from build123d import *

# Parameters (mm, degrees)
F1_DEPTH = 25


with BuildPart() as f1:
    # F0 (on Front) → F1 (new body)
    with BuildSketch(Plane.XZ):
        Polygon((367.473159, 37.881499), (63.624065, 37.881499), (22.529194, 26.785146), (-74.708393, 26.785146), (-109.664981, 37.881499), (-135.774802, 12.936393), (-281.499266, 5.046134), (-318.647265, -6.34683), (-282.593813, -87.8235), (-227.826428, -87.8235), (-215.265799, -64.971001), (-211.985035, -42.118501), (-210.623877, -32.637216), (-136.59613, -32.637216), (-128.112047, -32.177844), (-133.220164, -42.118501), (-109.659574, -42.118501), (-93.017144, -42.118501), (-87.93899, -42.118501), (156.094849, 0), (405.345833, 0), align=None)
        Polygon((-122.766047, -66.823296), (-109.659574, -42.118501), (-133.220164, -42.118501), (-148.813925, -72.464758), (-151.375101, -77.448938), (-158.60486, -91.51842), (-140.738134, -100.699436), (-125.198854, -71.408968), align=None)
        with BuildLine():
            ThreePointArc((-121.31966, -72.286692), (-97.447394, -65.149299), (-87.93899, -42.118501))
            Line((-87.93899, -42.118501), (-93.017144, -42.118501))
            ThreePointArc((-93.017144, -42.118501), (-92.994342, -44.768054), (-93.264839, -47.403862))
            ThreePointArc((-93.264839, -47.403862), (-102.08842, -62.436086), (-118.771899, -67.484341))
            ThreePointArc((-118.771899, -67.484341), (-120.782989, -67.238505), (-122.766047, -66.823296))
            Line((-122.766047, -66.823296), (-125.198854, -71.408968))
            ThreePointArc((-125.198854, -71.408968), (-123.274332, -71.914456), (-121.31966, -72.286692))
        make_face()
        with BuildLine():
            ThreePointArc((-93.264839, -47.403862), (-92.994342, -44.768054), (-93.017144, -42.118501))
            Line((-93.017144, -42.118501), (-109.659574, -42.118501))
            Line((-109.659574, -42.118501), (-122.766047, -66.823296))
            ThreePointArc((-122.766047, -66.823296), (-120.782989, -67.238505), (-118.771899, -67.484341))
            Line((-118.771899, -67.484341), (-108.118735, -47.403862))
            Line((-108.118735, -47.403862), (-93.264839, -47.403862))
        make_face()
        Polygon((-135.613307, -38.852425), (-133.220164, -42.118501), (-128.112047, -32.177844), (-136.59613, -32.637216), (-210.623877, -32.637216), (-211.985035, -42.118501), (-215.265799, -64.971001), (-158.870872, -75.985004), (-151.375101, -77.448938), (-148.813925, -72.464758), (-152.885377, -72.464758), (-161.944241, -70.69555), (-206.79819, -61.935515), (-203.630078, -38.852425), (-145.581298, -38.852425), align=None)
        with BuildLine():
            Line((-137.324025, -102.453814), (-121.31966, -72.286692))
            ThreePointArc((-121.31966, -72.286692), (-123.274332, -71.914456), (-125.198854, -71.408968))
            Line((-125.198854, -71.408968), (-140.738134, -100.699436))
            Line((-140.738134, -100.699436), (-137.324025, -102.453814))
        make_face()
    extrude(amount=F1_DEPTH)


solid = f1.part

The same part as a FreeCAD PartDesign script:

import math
import FreeCAD as App
import Part
import Sketcher
from FreeCAD import Vector

doc = App.newDocument("Part")
body = doc.addObject("PartDesign::Body", "Body")

# Sketch on XZ plane
sketch1 = body.newObject("Sketcher::SketchObject", "Sketch")
sketch1.AttachmentSupport = (doc.getObject("XZ_Plane"), [""])
sketch1.MapMode = "FlatFace"
sketch1.addGeometry([
    Part.LineSegment(Vector(367.5, 37.9, 0), Vector(63.6, 37.9, 0)),  # 0
    Part.LineSegment(Vector(63.6, 37.9, 0), Vector(22.5, 26.8, 0)),  # 1
    Part.LineSegment(Vector(22.5, 26.8, 0), Vector(-74.7, 26.8, 0)),  # 2
    Part.LineSegment(Vector(-74.7, 26.8, 0), Vector(-109.7, 37.9, 0)),  # 3
    Part.LineSegment(Vector(-109.7, 37.9, 0), Vector(-135.8, 12.9, 0)),  # 4
    Part.LineSegment(Vector(-135.8, 12.9, 0), Vector(-281.5, 5, 0)),  # 5
    Part.LineSegment(Vector(-281.5, 5, 0), Vector(-318.6, -6.3, 0)),  # 6
    Part.LineSegment(Vector(-318.6, -6.3, 0), Vector(-282.6, -87.8, 0)),  # 7
    Part.LineSegment(Vector(-282.6, -87.8, 0), Vector(-227.8, -87.8, 0)),  # 8
    Part.LineSegment(Vector(-227.8, -87.8, 0), Vector(-215.3, -65, 0)),  # 9
    Part.LineSegment(Vector(-215.3, -65, 0), Vector(-158.9, -76, 0)),  # 10
    Part.LineSegment(Vector(-158.9, -76, 0), Vector(-151.4, -77.4, 0)),  # 11
    Part.LineSegment(Vector(-151.4, -77.4, 0), Vector(-158.6, -91.5, 0)),  # 12
    Part.LineSegment(Vector(-158.6, -91.5, 0), Vector(-140.7, -100.7, 0)),  # 13
    Part.LineSegment(Vector(-140.7, -100.7, 0), Vector(-137.3, -102.5, 0)),  # 14
    Part.LineSegment(Vector(-137.3, -102.5, 0), Vector(-121.3, -72.3, 0)),  # 15
    Part.ArcOfCircle(Part.Circle(Vector(-116.9, -43.6, 0), Vector(0, 0, 1), 29), math.radians(-99), math.radians(3)),  # 16
    Part.LineSegment(Vector(-87.9, -42.1, 0), Vector(156.1, 0, 0)),  # 17
    Part.LineSegment(Vector(156.1, 0, 0), Vector(405.3, 0, 0)),  # 18
    Part.LineSegment(Vector(405.3, 0, 0), Vector(367.5, 37.9, 0)),  # 19
    Part.LineSegment(Vector(-133.2, -42.1, 0), Vector(-148.8, -72.5, 0)),  # 20
    Part.LineSegment(Vector(-148.8, -72.5, 0), Vector(-152.9, -72.5, 0)),  # 21
    Part.LineSegment(Vector(-152.9, -72.5, 0), Vector(-161.9, -70.7, 0)),  # 22
    Part.LineSegment(Vector(-161.9, -70.7, 0), Vector(-206.8, -61.9, 0)),  # 23
    Part.LineSegment(Vector(-206.8, -61.9, 0), Vector(-203.6, -38.9, 0)),  # 24
    Part.LineSegment(Vector(-203.6, -38.9, 0), Vector(-135.6, -38.9, 0)),  # 25
    Part.LineSegment(Vector(-135.6, -38.9, 0), Vector(-133.2, -42.1, 0)),  # 26
    Part.ArcOfCircle(Part.Circle(Vector(-116.9, -43.6, 0), Vector(0, 0, 1), 23.9), math.radians(-95), math.radians(-9)),  # 27
    Part.LineSegment(Vector(-118.8, -67.5, 0), Vector(-108.1, -47.4, 0)),  # 28
    Part.LineSegment(Vector(-108.1, -47.4, 0), Vector(-93.3, -47.4, 0)),  # 29
], False)
sketch1.addConstraint([
    Sketcher.Constraint("Coincident", 0, 2, 1, 1),
    Sketcher.Constraint("Coincident", 1, 2, 2, 1),
    Sketcher.Constraint("Coincident", 2, 2, 3, 1),
    Sketcher.Constraint("Coincident", 3, 2, 4, 1),
    Sketcher.Constraint("Coincident", 4, 2, 5, 1),
    Sketcher.Constraint("Coincident", 5, 2, 6, 1),
    Sketcher.Constraint("Coincident", 6, 2, 7, 1),
    Sketcher.Constraint("Coincident", 7, 2, 8, 1),
    Sketcher.Constraint("Coincident", 8, 2, 9, 1),
    Sketcher.Constraint("Coincident", 9, 2, 10, 1),
    Sketcher.Constraint("Coincident", 10, 2, 11, 1),
    Sketcher.Constraint("Coincident", 11, 2, 12, 1),
    Sketcher.Constraint("Coincident", 12, 2, 13, 1),
    Sketcher.Constraint("Coincident", 13, 2, 14, 1),
    Sketcher.Constraint("Coincident", 14, 2, 15, 1),
    Sketcher.Constraint("Coincident", 15, 2, 16, 1),
    Sketcher.Constraint("Coincident", 16, 2, 17, 1),
    Sketcher.Constraint("Coincident", 17, 2, 18, 1),
    Sketcher.Constraint("Coincident", 18, 2, 19, 1),
    Sketcher.Constraint("Coincident", 19, 2, 0, 1),
    Sketcher.Constraint("Coincident", 20, 2, 21, 1),
    Sketcher.Constraint("Coincident", 21, 2, 22, 1),
    Sketcher.Constraint("Coincident", 22, 2, 23, 1),
    Sketcher.Constraint("Coincident", 23, 2, 24, 1),
    Sketcher.Constraint("Coincident", 24, 2, 25, 1),
    Sketcher.Constraint("Coincident", 25, 2, 26, 1),
    Sketcher.Constraint("Coincident", 26, 2, 20, 1),
    Sketcher.Constraint("Coincident", 27, 1, 28, 1),
    Sketcher.Constraint("Coincident", 28, 2, 29, 1),
    Sketcher.Constraint("Coincident", 29, 2, 27, 2),
    Sketcher.Constraint("Horizontal", 0),
    Sketcher.Constraint("Horizontal", 2),
    Sketcher.Constraint("Horizontal", 8),
    Sketcher.Constraint("Horizontal", 18),
    Sketcher.Constraint("Horizontal", 21),
    Sketcher.Constraint("Horizontal", 25),
    Sketcher.Constraint("Horizontal", 29),
    Sketcher.Constraint("Coincident", 27, 3, 16, 3),
    Sketcher.Constraint("PointOnObject", 17, 2, -1),
    Sketcher.Constraint("Parallel", 10, 11),
    Sketcher.Constraint("Perpendicular", 12, 13),
    Sketcher.Constraint("Parallel", 13, 14),
    Sketcher.Constraint("Perpendicular", 14, 20),
    Sketcher.Constraint("Parallel", 11, 22),
    Sketcher.Constraint("Parallel", 22, 23),
    Sketcher.Constraint("Parallel", 15, 28),
    Sketcher.Constraint("Horizontal", 0, 2, 3, 2),
    Sketcher.Constraint("Horizontal", 16, 2, 26, 2),
    Sketcher.Constraint("Radius", 16, 28.980242),
    Sketcher.Constraint("Distance", 26, 4.048998),
    Sketcher.Constraint("DistanceY", 9, 2, -1, 1, 64.971001),
    Sketcher.Constraint("Radius", 27, 23.910676),
    Sketcher.Constraint("DistanceX", 27, 3, 1, 2, 139.407998),
    Sketcher.Constraint("DistanceX", 4, 2, 16, 3, 18.895998),
    Sketcher.Constraint("DistanceX", 6, 2, 5, 2, 37.147999),
    Sketcher.Constraint("DistanceX", 21, 2, 21, 1, 4.071452),
    Sketcher.Constraint("DistanceX", 25, 1, 25, 2, 68.016771),
    Sketcher.Constraint("DistanceY", -1, 1, 0, 2, 37.881499),
    Sketcher.Constraint("DistanceX", 4, 2, -1, 1, 135.774802),
    Sketcher.Constraint("DistanceY", 7, 2, -1, 1, 87.8235),
    Sketcher.Constraint("DistanceX", 9, 2, -1, 1, 215.265799),
    Sketcher.Constraint("DistanceX", 11, 2, -1, 1, 151.375101),
    Sketcher.Constraint("DistanceY", 16, 2, -1, 1, 42.118501),
    Sketcher.Constraint("DistanceX", 27, 1, -1, 1, 118.771899),
    Sketcher.Constraint("DistanceY", 13, 2, 11, 2, 23.250498),
    Sketcher.Constraint("DistanceY", 27, 3, 25, 2, 4.7963),
    Sketcher.Constraint("Distance", 4, 36.110678),
    Sketcher.Constraint("Distance", 19, 53.56629),
    Sketcher.Constraint("Distance", 22, 9.230012),
    Sketcher.Constraint("DistanceX", 0, 2, 0, 1, 303.849094),
    Sketcher.Constraint("DistanceX", 2, 2, 2, 1, 97.237587),
    Sketcher.Constraint("DistanceX", 8, 1, 8, 2, 54.767385),
    Sketcher.Constraint("DistanceX", 18, 1, 18, 2, 249.250984),
    Sketcher.Constraint("DistanceX", 29, 1, 29, 2, 14.853896),
    Sketcher.Constraint("DistanceX", 3, 2, -1, 1, 109.664981),
    Sketcher.Constraint("DistanceY", 6, 2, -1, 1, 6.34683),
    Sketcher.Constraint("DistanceX", 8, 2, -1, 1, 227.826428),
    Sketcher.Constraint("DistanceX", 10, 2, -1, 1, 158.870872),
    Sketcher.Constraint("DistanceY", 11, 2, -1, 1, 77.448938),
    Sketcher.Constraint("DistanceX", 12, 2, -1, 1, 158.60486),
    Sketcher.Constraint("DistanceY", 12, 2, -1, 1, 91.51842),
    Sketcher.Constraint("DistanceX", 15, 2, -1, 1, 121.31966),
    Sketcher.Constraint("DistanceX", 16, 2, -1, 1, 87.93899),
    Sketcher.Constraint("DistanceX", -1, 1, 17, 2, 156.094849),
    Sketcher.Constraint("DistanceY", 20, 2, -1, 1, 72.464758),
    Sketcher.Constraint("DistanceX", 22, 2, -1, 1, 161.944241),
    Sketcher.Constraint("DistanceX", 23, 2, -1, 1, 206.79819),
    Sketcher.Constraint("DistanceY", 28, 2, -1, 1, 47.403862),
    Sketcher.Constraint("DistanceY", 16, 3, 1, 2, 70.43387),
    Sketcher.Constraint("DistanceY", 5, 2, 4, 2, 7.890259),
    Sketcher.Constraint("DistanceX", 5, 2, 27, 3, 164.620462),
])
pad1 = body.newObject("PartDesign::Pad", "Pad")
pad1.Profile = sketch1
pad1.Length = 25

doc.recompute()
